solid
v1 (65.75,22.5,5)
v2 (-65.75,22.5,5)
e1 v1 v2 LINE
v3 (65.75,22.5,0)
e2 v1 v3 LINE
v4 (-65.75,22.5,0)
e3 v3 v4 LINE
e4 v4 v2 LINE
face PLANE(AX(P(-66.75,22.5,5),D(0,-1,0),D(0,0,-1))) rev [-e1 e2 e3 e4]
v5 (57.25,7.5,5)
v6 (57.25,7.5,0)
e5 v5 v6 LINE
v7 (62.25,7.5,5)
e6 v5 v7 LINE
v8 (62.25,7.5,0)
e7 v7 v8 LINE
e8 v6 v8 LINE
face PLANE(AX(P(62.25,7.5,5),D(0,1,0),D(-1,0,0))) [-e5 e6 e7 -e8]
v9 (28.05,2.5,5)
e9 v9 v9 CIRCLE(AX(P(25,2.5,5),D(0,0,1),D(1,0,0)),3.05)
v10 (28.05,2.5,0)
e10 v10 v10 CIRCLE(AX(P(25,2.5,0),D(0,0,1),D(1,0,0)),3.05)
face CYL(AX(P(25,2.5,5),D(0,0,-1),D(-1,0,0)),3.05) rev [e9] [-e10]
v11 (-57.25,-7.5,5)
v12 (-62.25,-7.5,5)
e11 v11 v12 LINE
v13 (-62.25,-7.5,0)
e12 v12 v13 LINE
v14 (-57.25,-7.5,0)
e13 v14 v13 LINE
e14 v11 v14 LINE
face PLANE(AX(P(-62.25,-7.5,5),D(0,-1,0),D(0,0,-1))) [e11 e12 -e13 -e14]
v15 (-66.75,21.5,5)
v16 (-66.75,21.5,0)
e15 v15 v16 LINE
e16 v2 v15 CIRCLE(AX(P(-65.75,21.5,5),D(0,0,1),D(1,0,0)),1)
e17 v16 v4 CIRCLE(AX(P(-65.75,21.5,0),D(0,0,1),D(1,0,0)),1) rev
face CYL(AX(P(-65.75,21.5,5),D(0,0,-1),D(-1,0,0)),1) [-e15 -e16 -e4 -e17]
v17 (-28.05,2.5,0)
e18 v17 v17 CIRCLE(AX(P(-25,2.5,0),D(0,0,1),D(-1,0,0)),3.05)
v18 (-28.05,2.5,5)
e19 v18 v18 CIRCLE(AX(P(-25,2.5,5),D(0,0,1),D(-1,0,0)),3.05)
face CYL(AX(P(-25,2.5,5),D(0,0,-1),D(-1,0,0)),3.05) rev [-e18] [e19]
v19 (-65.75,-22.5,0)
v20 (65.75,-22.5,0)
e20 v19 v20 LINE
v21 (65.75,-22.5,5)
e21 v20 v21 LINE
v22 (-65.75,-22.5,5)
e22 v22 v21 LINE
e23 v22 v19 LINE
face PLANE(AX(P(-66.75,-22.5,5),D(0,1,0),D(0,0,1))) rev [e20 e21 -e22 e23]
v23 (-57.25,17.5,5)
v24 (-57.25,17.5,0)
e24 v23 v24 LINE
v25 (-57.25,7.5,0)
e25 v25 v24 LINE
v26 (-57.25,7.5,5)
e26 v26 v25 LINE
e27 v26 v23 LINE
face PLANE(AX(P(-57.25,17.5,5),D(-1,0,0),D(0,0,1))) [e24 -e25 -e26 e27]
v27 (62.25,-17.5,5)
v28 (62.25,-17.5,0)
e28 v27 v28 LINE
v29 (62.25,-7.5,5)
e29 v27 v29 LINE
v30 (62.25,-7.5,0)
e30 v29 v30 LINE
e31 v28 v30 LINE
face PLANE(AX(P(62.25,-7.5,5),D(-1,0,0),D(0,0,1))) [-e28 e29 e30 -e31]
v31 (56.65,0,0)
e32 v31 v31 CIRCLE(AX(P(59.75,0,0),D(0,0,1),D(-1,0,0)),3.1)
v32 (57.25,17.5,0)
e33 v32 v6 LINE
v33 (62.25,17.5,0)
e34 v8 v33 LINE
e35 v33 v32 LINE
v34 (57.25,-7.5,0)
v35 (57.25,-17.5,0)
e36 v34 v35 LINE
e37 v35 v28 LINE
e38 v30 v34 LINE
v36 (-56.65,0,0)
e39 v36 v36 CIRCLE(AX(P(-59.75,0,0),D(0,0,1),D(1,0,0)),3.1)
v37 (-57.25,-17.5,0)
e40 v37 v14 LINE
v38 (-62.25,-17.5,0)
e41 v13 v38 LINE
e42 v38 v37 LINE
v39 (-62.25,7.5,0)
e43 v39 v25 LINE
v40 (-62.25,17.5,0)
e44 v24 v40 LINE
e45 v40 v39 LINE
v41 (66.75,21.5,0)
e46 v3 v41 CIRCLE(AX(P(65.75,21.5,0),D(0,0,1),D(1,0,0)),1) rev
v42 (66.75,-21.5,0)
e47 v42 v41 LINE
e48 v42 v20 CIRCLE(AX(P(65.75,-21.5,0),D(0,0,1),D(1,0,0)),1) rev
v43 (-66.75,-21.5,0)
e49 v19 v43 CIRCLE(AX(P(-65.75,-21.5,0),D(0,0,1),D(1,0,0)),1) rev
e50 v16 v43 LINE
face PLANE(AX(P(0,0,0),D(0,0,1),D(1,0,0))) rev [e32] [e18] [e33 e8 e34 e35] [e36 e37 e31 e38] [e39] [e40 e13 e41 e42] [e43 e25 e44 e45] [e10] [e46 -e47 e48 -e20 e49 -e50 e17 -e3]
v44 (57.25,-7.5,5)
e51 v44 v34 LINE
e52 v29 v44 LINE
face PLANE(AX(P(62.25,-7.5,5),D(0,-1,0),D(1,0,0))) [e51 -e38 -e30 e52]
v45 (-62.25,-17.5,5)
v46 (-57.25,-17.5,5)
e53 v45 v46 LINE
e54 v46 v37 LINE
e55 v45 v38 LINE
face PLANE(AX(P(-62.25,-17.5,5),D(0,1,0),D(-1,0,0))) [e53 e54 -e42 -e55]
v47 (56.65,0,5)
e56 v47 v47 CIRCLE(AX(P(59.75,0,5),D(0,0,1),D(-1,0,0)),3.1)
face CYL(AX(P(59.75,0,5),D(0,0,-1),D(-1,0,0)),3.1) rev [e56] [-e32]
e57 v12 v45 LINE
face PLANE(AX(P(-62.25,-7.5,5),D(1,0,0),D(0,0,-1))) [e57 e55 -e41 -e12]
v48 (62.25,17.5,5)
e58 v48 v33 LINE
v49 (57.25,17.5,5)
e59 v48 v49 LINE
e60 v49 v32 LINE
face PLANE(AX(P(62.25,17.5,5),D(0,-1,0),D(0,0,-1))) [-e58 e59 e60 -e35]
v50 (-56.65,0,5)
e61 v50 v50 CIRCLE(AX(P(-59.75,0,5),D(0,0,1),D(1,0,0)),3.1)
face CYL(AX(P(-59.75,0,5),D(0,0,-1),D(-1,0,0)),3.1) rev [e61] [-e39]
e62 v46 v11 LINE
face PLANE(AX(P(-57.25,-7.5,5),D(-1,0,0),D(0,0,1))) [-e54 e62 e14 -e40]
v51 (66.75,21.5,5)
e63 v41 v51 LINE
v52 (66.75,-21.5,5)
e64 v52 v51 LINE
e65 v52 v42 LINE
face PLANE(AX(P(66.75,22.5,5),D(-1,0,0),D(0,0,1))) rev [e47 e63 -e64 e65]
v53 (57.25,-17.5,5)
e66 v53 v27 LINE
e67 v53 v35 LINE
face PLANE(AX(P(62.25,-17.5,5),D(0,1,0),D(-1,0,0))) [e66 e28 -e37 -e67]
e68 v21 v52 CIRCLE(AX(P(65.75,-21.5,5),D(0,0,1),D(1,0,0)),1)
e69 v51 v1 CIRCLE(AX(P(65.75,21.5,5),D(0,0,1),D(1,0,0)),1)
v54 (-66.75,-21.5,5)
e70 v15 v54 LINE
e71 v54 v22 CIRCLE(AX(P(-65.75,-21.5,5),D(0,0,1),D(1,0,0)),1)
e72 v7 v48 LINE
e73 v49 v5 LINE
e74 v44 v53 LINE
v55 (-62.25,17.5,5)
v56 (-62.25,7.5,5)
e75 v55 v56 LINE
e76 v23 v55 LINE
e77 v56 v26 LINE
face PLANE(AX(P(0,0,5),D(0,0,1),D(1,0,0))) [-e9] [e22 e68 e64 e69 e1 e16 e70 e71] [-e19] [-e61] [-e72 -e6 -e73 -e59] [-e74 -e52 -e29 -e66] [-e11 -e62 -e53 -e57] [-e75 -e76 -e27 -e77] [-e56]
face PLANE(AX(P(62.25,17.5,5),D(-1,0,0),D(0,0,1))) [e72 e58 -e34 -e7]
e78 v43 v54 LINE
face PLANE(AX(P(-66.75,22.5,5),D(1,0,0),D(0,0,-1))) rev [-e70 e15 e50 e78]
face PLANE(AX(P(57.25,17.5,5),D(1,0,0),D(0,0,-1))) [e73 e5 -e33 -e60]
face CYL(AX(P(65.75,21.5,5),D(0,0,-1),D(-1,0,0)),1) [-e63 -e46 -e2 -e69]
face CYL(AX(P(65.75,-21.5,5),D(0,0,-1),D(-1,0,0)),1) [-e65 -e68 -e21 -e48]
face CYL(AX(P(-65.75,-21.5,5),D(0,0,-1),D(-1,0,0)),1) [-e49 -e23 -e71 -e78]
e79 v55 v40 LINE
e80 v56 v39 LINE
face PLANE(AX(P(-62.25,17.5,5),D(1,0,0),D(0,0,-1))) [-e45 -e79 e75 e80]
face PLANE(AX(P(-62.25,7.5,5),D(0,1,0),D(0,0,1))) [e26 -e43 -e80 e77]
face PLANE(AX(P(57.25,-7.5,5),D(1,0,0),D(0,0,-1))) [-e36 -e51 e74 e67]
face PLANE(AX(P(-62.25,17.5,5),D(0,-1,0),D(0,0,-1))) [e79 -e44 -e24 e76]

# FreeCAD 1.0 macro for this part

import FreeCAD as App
import Part
import Sketcher
Q = App.Units.Quantity


def edges_at(feature, points):
    """Names of the edges that pass closest to the given points."""
    edges = feature.Shape.Edges
    near = lambda p: min(range(len(edges)), key=lambda i: edges[i].distToShape(Part.Vertex(*p))[0])
    return sorted({f"Edge{near(p) + 1}" for p in points})


def add_polygon(sketch, points):
    """Adds a closed chain of lines whose ends are joined by coincident constraints."""
    first, n = sketch.GeometryCount, len(points)
    for a, b in zip(points, points[1:] + points[:1]):
        sketch.addGeometry(Part.LineSegment(App.Vector(*a, 0), App.Vector(*b, 0)), False)
    for i in range(n):
        sketch.addConstraint(Sketcher.Constraint("Coincident", first + i, 2, first + (i + 1) % n, 1))

doc = App.newDocument("Part")
body = doc.addObject("PartDesign::Body", "Body")

# Sketch on XY plane
sketch1 = doc.addObject("Sketcher::SketchObject", "Sketch")
body.addObject(sketch1)
sketch1.AttachmentSupport = (doc.XY_Plane, [""])
sketch1.MapMode = "FlatFace"
add_polygon(sketch1, [(-66.8, 22.5), (-66.8, -22.5), (66.8, -22.5), (66.8, 22.5)])  # lines 0-3
add_polygon(sketch1, [(-57.2, -17.5), (-62.2, -17.5), (-62.2, -7.5), (-57.2, -7.5)])  # lines 4-7
add_polygon(sketch1, [(62.2, -17.5), (57.2, -17.5), (57.2, -7.5), (62.2, -7.5)])  # lines 8-11
sketch1.addGeometry(Part.Circle(App.Vector(-59.8, 0, 0), App.Vector(0, 0, 1), 3.1), False)  # 12
sketch1.addGeometry(Part.Circle(App.Vector(-25, 2.5, 0), App.Vector(0, 0, 1), 3), False)  # 13
add_polygon(sketch1, [(-57.2, 7.5), (-62.2, 7.5), (-62.2, 17.5), (-57.2, 17.5)])  # lines 14-17
sketch1.addGeometry(Part.Circle(App.Vector(25, 2.5, 0), App.Vector(0, 0, 1), 3), False)  # 18
sketch1.addGeometry(Part.Circle(App.Vector(59.8, 0, 0), App.Vector(0, 0, 1), 3.1), False)  # 19
add_polygon(sketch1, [(62.2, 7.5), (57.2, 7.5), (57.2, 17.5), (62.2, 17.5)])  # lines 20-23
sketch1.addConstraint(Sketcher.Constraint("Vertical", 0))
sketch1.addConstraint(Sketcher.Constraint("Horizontal", 1))
sketch1.addConstraint(Sketcher.Constraint("Vertical", 2))
sketch1.addConstraint(Sketcher.Constraint("Horizontal", 3))
sketch1.addConstraint(Sketcher.Constraint("Horizontal", 4))
sketch1.addConstraint(Sketcher.Constraint("Vertical", 5))
sketch1.addConstraint(Sketcher.Constraint("Horizontal", 6))
sketch1.addConstraint(Sketcher.Constraint("Vertical", 7))
sketch1.addConstraint(Sketcher.Constraint("Horizontal", 8))
sketch1.addConstraint(Sketcher.Constraint("Vertical", 9))
sketch1.addConstraint(Sketcher.Constraint("Horizontal", 10))
sketch1.addConstraint(Sketcher.Constraint("Vertical", 11))
sketch1.addConstraint(Sketcher.Constraint("Horizontal", 14))
sketch1.addConstraint(Sketcher.Constraint("Vertical", 15))
sketch1.addConstraint(Sketcher.Constraint("Horizontal", 16))
sketch1.addConstraint(Sketcher.Constraint("Vertical", 17))
sketch1.addConstraint(Sketcher.Constraint("Horizontal", 20))
sketch1.addConstraint(Sketcher.Constraint("Vertical", 21))
sketch1.addConstraint(Sketcher.Constraint("Horizontal", 22))
sketch1.addConstraint(Sketcher.Constraint("Vertical", 23))
sketch1.addConstraint(Sketcher.Constraint("Equal", 13, 18))
sketch1.addConstraint(Sketcher.Constraint("Equal", 12, 19))
sketch1.addConstraint(Sketcher.Constraint("Symmetric", 12, 3, 19, 3, -1, 1))
sketch1.addConstraint(Sketcher.Constraint("Symmetric", 0, 2, 2, 2, -1, 1))
sketch1.addConstraint(Sketcher.Constraint("Symmetric", 10, 2, 14, 2, -1, 1))
sketch1.addConstraint(Sketcher.Constraint("Symmetric", 8, 2, 16, 2, -1, 1))
sketch1.addConstraint(Sketcher.Constraint("Symmetric", 6, 2, 20, 2, -1, 1))
sketch1.addConstraint(Sketcher.Constraint("Symmetric", 4, 2, 22, 2, -1, 1))
sketch1.addConstraint(Sketcher.Constraint("Symmetric", 13, 3, 18, 3, -2))
sketch1.addConstraint(Sketcher.Constraint("Symmetric", 7, 2, 8, 2, -2))
sketch1.addConstraint(Sketcher.Constraint("Symmetric", 5, 2, 10, 2, -2))
sketch1.addConstraint(Sketcher.Constraint("PointOnObject", 12, 3, -1))
sketch1.addConstraint(Sketcher.Constraint("Diameter", 12, Q("6.2 mm")))
sketch1.addConstraint(Sketcher.Constraint("Diameter", 13, Q("6.1 mm")))
sketch1.addConstraint(Sketcher.Constraint("DistanceX", 4, 2, 4, 1, Q("5 mm")))
sketch1.addConstraint(Sketcher.Constraint("DistanceY", 0, 2, 0, 1, Q("45 mm")))
sketch1.addConstraint(Sketcher.Constraint("DistanceY", 5, 1, 5, 2, Q("10 mm")))
sketch1.addConstraint(Sketcher.Constraint("DistanceX", 1, 1, 1, 2, Q("133.5 mm")))
sketch1.addConstraint(Sketcher.Constraint("DistanceX", 13, 3, -1, 1, Q("25 mm")))
sketch1.addConstraint(Sketcher.Constraint("DistanceX", 0, 2, 12, 3, Q("7 mm")))
sketch1.addConstraint(Sketcher.Constraint("DistanceY", 0, 2, 13, 3, Q("25 mm")))
sketch1.addConstraint(Sketcher.Constraint("DistanceY", 0, 2, 4, 2, Q("5 mm")))
sketch1.addConstraint(Sketcher.Constraint("DistanceX", 0, 2, 4, 2, Q("4.5 mm")))
pad1 = doc.addObject("PartDesign::Pad", "Pad")
body.addObject(pad1)
pad1.Profile = sketch1
pad1.Length = 5
doc.recompute()

fillet = doc.addObject("PartDesign::Fillet", "Fillet")
body.addObject(fillet)
fillet.Base = (pad1, edges_at(pad1, [
    (66.75, -22.5, 2.5),
    (-66.75, -22.5, 2.5),
    (-66.75, 22.5, 2.5),
    (66.75, 22.5, 2.5),
]))
fillet.Radius = 1

doc.recompute()
